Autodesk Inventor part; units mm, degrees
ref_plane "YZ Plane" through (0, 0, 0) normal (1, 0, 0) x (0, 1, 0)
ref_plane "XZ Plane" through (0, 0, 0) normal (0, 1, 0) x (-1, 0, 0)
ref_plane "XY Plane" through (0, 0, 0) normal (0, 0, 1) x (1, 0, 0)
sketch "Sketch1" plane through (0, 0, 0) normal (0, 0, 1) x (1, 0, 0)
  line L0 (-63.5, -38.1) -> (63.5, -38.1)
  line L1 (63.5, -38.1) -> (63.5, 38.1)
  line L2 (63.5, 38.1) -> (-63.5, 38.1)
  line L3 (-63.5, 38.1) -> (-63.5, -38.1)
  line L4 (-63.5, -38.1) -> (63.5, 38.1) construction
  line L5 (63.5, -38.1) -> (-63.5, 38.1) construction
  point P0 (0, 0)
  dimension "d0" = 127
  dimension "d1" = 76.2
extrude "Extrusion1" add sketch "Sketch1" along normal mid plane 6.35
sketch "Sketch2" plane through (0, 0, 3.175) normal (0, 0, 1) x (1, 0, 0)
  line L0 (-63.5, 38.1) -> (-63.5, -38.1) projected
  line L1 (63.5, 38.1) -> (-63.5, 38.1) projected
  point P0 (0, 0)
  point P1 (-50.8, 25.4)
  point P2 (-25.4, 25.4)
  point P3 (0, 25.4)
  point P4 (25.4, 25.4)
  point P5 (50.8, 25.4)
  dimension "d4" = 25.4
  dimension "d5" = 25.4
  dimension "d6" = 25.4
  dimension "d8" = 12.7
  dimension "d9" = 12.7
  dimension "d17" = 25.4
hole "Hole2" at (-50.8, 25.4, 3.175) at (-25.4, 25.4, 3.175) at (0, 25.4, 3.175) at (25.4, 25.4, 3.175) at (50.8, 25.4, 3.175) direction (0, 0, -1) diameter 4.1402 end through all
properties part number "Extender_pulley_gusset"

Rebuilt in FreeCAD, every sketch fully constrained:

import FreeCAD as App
import Part
import Sketcher

V = App.Vector
Q = App.Units.Quantity

doc = App.newDocument("Part")
body = doc.addObject("PartDesign::Body", "Body")

sketch1 = body.newObject("Sketcher::SketchObject", "Sketch")
sketch1.AttachmentSupport = (doc.getObject("XY_Plane"), [""])
sketch1.MapMode = "FlatFace"
sketch1.addGeometry([
    Part.LineSegment(V(-63.5, 38.1, 0), V(-63.5, -38.1, 0)),
    Part.LineSegment(V(-63.5, -38.1, 0), V(63.5, -38.1, 0)),
    Part.LineSegment(V(63.5, -38.1, 0), V(63.5, 38.1, 0)),
    Part.LineSegment(V(63.5, 38.1, 0), V(-63.5, 38.1, 0)),
], False)
sketch1.addConstraint([
    Sketcher.Constraint("Coincident", 0, 2, 1, 1),
    Sketcher.Constraint("Coincident", 1, 2, 2, 1),
    Sketcher.Constraint("Coincident", 2, 2, 3, 1),
    Sketcher.Constraint("Coincident", 3, 2, 0, 1),
    Sketcher.Constraint("Vertical", 0),
    Sketcher.Constraint("Horizontal", 1),
    Sketcher.Constraint("Vertical", 2),
    Sketcher.Constraint("Horizontal", 3),
    Sketcher.Constraint("Symmetric", 0, 2, 2, 2, -1, 1),
    Sketcher.Constraint("DistanceX", 1, 1, 1, 2, Q("5 in")),
    Sketcher.Constraint("DistanceY", 0, 2, 0, 1, Q("3 in")),
])
pad1 = body.newObject("PartDesign::Pad", "Pad")
pad1.Profile = sketch1
pad1.Length = Q("0.25 in")
pad1.Midplane = True

sketch2 = body.newObject("Sketcher::SketchObject", "Sketch001")
sketch2.AttachmentSupport = (doc.getObject("XY_Plane"), [""])
sketch2.MapMode = "FlatFace"
sketch2.AttachmentOffset = App.Placement(V(0, 0, 0.125 * 25.4), App.Rotation())
sketch2.addGeometry([
    Part.Circle(V(-50.8, 25.4, 0), V(0, 0, 1), 2.0701),
    Part.Circle(V(-25.4, 25.4, 0), V(0, 0, 1), 2.0701),
    Part.Circle(V(0, 25.4, 0), V(0, 0, 1), 2.0701),
    Part.Circle(V(25.4, 25.4, 0), V(0, 0, 1), 2.0701),
    Part.Circle(V(50.8, 25.4, 0), V(0, 0, 1), 2.0701),
], False)
sketch2.addConstraint([
    Sketcher.Constraint("Equal", 0, 1),
    Sketcher.Constraint("Equal", 1, 2),
    Sketcher.Constraint("Equal", 2, 3),
    Sketcher.Constraint("Equal", 3, 4),
    Sketcher.Constraint("Symmetric", 1, 3, 3, 3, -2),
    Sketcher.Constraint("Symmetric", 0, 3, 4, 3, -2),
    Sketcher.Constraint("PointOnObject", 2, 3, -2),
    Sketcher.Constraint("Horizontal", 0, 3, 1, 3),
    Sketcher.Constraint("Horizontal", 1, 3, 2, 3),
    Sketcher.Constraint("Diameter", 0, Q("0.163 in")),
    Sketcher.Constraint("DistanceX", 0, 3, -1, 1, Q("2 in")),
    Sketcher.Constraint("DistanceY", -1, 1, 0, 3, Q("1 in")),
    Sketcher.Constraint("DistanceX", 1, 3, -1, 1, Q("1 in")),
])
doc.recompute()
hole = body.newObject("PartDesign::Hole", "Hole")
hole.Profile = sketch2
hole.ThreadType = "None"
hole.Diameter = Q("0.163 in")
hole.DepthType = "ThroughAll"

doc.recompute()
